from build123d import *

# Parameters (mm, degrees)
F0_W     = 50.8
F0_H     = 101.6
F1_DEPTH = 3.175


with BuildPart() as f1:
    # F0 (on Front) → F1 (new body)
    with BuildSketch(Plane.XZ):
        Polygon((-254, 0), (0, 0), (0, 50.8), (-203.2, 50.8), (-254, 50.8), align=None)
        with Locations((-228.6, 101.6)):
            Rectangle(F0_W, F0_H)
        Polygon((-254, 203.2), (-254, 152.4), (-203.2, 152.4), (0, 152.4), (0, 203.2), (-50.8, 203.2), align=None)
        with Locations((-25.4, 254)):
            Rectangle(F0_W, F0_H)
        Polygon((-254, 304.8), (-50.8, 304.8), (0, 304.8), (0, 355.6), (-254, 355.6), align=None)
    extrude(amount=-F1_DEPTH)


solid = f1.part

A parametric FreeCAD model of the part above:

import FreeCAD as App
import Part
import Sketcher
from FreeCAD import Vector
Q = App.Units.Quantity

doc = App.newDocument("Part")
body = doc.addObject("PartDesign::Body", "Body")

sketch1 = doc.addObject("Sketcher::SketchObject", "Sketch")
body.addObject(sketch1)
sketch1.AttachmentSupport = (doc.XZ_Plane, [""])
sketch1.MapMode = "FlatFace"
sketch1.addGeometry([
    Part.LineSegment(Vector(-254, 0, 0), Vector(0, 0, 0)),
    Part.LineSegment(Vector(0, 0, 0), Vector(0, 51, 0)),
    Part.LineSegment(Vector(0, 51, 0), Vector(-203, 51, 0)),
    Part.LineSegment(Vector(-203, 51, 0), Vector(-203, 152, 0)),
    Part.LineSegment(Vector(-203, 152, 0), Vector(0, 152, 0)),
    Part.LineSegment(Vector(0, 152, 0), Vector(0, 356, 0)),
    Part.LineSegment(Vector(0, 356, 0), Vector(-254, 356, 0)),
    Part.LineSegment(Vector(-254, 356, 0), Vector(-254, 305, 0)),
    Part.LineSegment(Vector(-254, 305, 0), Vector(-51, 305, 0)),
    Part.LineSegment(Vector(-51, 305, 0), Vector(-51, 203, 0)),
    Part.LineSegment(Vector(-51, 203, 0), Vector(-254, 203, 0)),
    Part.LineSegment(Vector(-254, 203, 0), Vector(-254, 0, 0)),
], False)
sketch1.addConstraint([
    Sketcher.Constraint("Coincident", 0, 2, 1, 1),
    Sketcher.Constraint("Coincident", 1, 2, 2, 1),
    Sketcher.Constraint("Coincident", 2, 2, 3, 1),
    Sketcher.Constraint("Coincident", 3, 2, 4, 1),
    Sketcher.Constraint("Coincident", 4, 2, 5, 1),
    Sketcher.Constraint("Coincident", 5, 2, 6, 1),
    Sketcher.Constraint("Coincident", 6, 2, 7, 1),
    Sketcher.Constraint("Coincident", 7, 2, 8, 1),
    Sketcher.Constraint("Coincident", 8, 2, 9, 1),
    Sketcher.Constraint("Coincident", 9, 2, 10, 1),
    Sketcher.Constraint("Coincident", 10, 2, 11, 1),
    Sketcher.Constraint("Coincident", 11, 2, 0, 1),
    Sketcher.Constraint("Horizontal", 0),
    Sketcher.Constraint("Vertical", 1),
    Sketcher.Constraint("Horizontal", 2),
    Sketcher.Constraint("Vertical", 3),
    Sketcher.Constraint("Horizontal", 4),
    Sketcher.Constraint("Vertical", 5),
    Sketcher.Constraint("Horizontal", 6),
    Sketcher.Constraint("Vertical", 7),
    Sketcher.Constraint("Horizontal", 8),
    Sketcher.Constraint("Vertical", 9),
    Sketcher.Constraint("Horizontal", 10),
    Sketcher.Constraint("Vertical", 11),
    Sketcher.Constraint("Coincident", 0, 2, -1, 1),
    Sketcher.Constraint("PointOnObject", 4, 2, -2),
    Sketcher.Constraint("Vertical", 7, 2, 10, 2),
    Sketcher.Constraint("Equal", 4, 8),
    Sketcher.Constraint("Equal", 10, 5),
    Sketcher.Constraint("Equal", 1, 7),
    Sketcher.Constraint("Equal", 3, 9),
    Sketcher.Constraint("DistanceX", 0, 1, 0, 2, Q("10 in")),
    Sketcher.Constraint("DistanceX", 2, 2, 2, 1, Q("8 in")),
    Sketcher.Constraint("DistanceY", 1, 1, 1, 2, Q("2 in")),
    Sketcher.Constraint("DistanceY", 3, 1, 3, 2, Q("4 in")),
])
pad1 = doc.addObject("PartDesign::Pad", "Pad")
body.addObject(pad1)
pad1.Profile = sketch1
pad1.Length = Q("0.125 in")
pad1.Reversed = True

doc.recompute()
